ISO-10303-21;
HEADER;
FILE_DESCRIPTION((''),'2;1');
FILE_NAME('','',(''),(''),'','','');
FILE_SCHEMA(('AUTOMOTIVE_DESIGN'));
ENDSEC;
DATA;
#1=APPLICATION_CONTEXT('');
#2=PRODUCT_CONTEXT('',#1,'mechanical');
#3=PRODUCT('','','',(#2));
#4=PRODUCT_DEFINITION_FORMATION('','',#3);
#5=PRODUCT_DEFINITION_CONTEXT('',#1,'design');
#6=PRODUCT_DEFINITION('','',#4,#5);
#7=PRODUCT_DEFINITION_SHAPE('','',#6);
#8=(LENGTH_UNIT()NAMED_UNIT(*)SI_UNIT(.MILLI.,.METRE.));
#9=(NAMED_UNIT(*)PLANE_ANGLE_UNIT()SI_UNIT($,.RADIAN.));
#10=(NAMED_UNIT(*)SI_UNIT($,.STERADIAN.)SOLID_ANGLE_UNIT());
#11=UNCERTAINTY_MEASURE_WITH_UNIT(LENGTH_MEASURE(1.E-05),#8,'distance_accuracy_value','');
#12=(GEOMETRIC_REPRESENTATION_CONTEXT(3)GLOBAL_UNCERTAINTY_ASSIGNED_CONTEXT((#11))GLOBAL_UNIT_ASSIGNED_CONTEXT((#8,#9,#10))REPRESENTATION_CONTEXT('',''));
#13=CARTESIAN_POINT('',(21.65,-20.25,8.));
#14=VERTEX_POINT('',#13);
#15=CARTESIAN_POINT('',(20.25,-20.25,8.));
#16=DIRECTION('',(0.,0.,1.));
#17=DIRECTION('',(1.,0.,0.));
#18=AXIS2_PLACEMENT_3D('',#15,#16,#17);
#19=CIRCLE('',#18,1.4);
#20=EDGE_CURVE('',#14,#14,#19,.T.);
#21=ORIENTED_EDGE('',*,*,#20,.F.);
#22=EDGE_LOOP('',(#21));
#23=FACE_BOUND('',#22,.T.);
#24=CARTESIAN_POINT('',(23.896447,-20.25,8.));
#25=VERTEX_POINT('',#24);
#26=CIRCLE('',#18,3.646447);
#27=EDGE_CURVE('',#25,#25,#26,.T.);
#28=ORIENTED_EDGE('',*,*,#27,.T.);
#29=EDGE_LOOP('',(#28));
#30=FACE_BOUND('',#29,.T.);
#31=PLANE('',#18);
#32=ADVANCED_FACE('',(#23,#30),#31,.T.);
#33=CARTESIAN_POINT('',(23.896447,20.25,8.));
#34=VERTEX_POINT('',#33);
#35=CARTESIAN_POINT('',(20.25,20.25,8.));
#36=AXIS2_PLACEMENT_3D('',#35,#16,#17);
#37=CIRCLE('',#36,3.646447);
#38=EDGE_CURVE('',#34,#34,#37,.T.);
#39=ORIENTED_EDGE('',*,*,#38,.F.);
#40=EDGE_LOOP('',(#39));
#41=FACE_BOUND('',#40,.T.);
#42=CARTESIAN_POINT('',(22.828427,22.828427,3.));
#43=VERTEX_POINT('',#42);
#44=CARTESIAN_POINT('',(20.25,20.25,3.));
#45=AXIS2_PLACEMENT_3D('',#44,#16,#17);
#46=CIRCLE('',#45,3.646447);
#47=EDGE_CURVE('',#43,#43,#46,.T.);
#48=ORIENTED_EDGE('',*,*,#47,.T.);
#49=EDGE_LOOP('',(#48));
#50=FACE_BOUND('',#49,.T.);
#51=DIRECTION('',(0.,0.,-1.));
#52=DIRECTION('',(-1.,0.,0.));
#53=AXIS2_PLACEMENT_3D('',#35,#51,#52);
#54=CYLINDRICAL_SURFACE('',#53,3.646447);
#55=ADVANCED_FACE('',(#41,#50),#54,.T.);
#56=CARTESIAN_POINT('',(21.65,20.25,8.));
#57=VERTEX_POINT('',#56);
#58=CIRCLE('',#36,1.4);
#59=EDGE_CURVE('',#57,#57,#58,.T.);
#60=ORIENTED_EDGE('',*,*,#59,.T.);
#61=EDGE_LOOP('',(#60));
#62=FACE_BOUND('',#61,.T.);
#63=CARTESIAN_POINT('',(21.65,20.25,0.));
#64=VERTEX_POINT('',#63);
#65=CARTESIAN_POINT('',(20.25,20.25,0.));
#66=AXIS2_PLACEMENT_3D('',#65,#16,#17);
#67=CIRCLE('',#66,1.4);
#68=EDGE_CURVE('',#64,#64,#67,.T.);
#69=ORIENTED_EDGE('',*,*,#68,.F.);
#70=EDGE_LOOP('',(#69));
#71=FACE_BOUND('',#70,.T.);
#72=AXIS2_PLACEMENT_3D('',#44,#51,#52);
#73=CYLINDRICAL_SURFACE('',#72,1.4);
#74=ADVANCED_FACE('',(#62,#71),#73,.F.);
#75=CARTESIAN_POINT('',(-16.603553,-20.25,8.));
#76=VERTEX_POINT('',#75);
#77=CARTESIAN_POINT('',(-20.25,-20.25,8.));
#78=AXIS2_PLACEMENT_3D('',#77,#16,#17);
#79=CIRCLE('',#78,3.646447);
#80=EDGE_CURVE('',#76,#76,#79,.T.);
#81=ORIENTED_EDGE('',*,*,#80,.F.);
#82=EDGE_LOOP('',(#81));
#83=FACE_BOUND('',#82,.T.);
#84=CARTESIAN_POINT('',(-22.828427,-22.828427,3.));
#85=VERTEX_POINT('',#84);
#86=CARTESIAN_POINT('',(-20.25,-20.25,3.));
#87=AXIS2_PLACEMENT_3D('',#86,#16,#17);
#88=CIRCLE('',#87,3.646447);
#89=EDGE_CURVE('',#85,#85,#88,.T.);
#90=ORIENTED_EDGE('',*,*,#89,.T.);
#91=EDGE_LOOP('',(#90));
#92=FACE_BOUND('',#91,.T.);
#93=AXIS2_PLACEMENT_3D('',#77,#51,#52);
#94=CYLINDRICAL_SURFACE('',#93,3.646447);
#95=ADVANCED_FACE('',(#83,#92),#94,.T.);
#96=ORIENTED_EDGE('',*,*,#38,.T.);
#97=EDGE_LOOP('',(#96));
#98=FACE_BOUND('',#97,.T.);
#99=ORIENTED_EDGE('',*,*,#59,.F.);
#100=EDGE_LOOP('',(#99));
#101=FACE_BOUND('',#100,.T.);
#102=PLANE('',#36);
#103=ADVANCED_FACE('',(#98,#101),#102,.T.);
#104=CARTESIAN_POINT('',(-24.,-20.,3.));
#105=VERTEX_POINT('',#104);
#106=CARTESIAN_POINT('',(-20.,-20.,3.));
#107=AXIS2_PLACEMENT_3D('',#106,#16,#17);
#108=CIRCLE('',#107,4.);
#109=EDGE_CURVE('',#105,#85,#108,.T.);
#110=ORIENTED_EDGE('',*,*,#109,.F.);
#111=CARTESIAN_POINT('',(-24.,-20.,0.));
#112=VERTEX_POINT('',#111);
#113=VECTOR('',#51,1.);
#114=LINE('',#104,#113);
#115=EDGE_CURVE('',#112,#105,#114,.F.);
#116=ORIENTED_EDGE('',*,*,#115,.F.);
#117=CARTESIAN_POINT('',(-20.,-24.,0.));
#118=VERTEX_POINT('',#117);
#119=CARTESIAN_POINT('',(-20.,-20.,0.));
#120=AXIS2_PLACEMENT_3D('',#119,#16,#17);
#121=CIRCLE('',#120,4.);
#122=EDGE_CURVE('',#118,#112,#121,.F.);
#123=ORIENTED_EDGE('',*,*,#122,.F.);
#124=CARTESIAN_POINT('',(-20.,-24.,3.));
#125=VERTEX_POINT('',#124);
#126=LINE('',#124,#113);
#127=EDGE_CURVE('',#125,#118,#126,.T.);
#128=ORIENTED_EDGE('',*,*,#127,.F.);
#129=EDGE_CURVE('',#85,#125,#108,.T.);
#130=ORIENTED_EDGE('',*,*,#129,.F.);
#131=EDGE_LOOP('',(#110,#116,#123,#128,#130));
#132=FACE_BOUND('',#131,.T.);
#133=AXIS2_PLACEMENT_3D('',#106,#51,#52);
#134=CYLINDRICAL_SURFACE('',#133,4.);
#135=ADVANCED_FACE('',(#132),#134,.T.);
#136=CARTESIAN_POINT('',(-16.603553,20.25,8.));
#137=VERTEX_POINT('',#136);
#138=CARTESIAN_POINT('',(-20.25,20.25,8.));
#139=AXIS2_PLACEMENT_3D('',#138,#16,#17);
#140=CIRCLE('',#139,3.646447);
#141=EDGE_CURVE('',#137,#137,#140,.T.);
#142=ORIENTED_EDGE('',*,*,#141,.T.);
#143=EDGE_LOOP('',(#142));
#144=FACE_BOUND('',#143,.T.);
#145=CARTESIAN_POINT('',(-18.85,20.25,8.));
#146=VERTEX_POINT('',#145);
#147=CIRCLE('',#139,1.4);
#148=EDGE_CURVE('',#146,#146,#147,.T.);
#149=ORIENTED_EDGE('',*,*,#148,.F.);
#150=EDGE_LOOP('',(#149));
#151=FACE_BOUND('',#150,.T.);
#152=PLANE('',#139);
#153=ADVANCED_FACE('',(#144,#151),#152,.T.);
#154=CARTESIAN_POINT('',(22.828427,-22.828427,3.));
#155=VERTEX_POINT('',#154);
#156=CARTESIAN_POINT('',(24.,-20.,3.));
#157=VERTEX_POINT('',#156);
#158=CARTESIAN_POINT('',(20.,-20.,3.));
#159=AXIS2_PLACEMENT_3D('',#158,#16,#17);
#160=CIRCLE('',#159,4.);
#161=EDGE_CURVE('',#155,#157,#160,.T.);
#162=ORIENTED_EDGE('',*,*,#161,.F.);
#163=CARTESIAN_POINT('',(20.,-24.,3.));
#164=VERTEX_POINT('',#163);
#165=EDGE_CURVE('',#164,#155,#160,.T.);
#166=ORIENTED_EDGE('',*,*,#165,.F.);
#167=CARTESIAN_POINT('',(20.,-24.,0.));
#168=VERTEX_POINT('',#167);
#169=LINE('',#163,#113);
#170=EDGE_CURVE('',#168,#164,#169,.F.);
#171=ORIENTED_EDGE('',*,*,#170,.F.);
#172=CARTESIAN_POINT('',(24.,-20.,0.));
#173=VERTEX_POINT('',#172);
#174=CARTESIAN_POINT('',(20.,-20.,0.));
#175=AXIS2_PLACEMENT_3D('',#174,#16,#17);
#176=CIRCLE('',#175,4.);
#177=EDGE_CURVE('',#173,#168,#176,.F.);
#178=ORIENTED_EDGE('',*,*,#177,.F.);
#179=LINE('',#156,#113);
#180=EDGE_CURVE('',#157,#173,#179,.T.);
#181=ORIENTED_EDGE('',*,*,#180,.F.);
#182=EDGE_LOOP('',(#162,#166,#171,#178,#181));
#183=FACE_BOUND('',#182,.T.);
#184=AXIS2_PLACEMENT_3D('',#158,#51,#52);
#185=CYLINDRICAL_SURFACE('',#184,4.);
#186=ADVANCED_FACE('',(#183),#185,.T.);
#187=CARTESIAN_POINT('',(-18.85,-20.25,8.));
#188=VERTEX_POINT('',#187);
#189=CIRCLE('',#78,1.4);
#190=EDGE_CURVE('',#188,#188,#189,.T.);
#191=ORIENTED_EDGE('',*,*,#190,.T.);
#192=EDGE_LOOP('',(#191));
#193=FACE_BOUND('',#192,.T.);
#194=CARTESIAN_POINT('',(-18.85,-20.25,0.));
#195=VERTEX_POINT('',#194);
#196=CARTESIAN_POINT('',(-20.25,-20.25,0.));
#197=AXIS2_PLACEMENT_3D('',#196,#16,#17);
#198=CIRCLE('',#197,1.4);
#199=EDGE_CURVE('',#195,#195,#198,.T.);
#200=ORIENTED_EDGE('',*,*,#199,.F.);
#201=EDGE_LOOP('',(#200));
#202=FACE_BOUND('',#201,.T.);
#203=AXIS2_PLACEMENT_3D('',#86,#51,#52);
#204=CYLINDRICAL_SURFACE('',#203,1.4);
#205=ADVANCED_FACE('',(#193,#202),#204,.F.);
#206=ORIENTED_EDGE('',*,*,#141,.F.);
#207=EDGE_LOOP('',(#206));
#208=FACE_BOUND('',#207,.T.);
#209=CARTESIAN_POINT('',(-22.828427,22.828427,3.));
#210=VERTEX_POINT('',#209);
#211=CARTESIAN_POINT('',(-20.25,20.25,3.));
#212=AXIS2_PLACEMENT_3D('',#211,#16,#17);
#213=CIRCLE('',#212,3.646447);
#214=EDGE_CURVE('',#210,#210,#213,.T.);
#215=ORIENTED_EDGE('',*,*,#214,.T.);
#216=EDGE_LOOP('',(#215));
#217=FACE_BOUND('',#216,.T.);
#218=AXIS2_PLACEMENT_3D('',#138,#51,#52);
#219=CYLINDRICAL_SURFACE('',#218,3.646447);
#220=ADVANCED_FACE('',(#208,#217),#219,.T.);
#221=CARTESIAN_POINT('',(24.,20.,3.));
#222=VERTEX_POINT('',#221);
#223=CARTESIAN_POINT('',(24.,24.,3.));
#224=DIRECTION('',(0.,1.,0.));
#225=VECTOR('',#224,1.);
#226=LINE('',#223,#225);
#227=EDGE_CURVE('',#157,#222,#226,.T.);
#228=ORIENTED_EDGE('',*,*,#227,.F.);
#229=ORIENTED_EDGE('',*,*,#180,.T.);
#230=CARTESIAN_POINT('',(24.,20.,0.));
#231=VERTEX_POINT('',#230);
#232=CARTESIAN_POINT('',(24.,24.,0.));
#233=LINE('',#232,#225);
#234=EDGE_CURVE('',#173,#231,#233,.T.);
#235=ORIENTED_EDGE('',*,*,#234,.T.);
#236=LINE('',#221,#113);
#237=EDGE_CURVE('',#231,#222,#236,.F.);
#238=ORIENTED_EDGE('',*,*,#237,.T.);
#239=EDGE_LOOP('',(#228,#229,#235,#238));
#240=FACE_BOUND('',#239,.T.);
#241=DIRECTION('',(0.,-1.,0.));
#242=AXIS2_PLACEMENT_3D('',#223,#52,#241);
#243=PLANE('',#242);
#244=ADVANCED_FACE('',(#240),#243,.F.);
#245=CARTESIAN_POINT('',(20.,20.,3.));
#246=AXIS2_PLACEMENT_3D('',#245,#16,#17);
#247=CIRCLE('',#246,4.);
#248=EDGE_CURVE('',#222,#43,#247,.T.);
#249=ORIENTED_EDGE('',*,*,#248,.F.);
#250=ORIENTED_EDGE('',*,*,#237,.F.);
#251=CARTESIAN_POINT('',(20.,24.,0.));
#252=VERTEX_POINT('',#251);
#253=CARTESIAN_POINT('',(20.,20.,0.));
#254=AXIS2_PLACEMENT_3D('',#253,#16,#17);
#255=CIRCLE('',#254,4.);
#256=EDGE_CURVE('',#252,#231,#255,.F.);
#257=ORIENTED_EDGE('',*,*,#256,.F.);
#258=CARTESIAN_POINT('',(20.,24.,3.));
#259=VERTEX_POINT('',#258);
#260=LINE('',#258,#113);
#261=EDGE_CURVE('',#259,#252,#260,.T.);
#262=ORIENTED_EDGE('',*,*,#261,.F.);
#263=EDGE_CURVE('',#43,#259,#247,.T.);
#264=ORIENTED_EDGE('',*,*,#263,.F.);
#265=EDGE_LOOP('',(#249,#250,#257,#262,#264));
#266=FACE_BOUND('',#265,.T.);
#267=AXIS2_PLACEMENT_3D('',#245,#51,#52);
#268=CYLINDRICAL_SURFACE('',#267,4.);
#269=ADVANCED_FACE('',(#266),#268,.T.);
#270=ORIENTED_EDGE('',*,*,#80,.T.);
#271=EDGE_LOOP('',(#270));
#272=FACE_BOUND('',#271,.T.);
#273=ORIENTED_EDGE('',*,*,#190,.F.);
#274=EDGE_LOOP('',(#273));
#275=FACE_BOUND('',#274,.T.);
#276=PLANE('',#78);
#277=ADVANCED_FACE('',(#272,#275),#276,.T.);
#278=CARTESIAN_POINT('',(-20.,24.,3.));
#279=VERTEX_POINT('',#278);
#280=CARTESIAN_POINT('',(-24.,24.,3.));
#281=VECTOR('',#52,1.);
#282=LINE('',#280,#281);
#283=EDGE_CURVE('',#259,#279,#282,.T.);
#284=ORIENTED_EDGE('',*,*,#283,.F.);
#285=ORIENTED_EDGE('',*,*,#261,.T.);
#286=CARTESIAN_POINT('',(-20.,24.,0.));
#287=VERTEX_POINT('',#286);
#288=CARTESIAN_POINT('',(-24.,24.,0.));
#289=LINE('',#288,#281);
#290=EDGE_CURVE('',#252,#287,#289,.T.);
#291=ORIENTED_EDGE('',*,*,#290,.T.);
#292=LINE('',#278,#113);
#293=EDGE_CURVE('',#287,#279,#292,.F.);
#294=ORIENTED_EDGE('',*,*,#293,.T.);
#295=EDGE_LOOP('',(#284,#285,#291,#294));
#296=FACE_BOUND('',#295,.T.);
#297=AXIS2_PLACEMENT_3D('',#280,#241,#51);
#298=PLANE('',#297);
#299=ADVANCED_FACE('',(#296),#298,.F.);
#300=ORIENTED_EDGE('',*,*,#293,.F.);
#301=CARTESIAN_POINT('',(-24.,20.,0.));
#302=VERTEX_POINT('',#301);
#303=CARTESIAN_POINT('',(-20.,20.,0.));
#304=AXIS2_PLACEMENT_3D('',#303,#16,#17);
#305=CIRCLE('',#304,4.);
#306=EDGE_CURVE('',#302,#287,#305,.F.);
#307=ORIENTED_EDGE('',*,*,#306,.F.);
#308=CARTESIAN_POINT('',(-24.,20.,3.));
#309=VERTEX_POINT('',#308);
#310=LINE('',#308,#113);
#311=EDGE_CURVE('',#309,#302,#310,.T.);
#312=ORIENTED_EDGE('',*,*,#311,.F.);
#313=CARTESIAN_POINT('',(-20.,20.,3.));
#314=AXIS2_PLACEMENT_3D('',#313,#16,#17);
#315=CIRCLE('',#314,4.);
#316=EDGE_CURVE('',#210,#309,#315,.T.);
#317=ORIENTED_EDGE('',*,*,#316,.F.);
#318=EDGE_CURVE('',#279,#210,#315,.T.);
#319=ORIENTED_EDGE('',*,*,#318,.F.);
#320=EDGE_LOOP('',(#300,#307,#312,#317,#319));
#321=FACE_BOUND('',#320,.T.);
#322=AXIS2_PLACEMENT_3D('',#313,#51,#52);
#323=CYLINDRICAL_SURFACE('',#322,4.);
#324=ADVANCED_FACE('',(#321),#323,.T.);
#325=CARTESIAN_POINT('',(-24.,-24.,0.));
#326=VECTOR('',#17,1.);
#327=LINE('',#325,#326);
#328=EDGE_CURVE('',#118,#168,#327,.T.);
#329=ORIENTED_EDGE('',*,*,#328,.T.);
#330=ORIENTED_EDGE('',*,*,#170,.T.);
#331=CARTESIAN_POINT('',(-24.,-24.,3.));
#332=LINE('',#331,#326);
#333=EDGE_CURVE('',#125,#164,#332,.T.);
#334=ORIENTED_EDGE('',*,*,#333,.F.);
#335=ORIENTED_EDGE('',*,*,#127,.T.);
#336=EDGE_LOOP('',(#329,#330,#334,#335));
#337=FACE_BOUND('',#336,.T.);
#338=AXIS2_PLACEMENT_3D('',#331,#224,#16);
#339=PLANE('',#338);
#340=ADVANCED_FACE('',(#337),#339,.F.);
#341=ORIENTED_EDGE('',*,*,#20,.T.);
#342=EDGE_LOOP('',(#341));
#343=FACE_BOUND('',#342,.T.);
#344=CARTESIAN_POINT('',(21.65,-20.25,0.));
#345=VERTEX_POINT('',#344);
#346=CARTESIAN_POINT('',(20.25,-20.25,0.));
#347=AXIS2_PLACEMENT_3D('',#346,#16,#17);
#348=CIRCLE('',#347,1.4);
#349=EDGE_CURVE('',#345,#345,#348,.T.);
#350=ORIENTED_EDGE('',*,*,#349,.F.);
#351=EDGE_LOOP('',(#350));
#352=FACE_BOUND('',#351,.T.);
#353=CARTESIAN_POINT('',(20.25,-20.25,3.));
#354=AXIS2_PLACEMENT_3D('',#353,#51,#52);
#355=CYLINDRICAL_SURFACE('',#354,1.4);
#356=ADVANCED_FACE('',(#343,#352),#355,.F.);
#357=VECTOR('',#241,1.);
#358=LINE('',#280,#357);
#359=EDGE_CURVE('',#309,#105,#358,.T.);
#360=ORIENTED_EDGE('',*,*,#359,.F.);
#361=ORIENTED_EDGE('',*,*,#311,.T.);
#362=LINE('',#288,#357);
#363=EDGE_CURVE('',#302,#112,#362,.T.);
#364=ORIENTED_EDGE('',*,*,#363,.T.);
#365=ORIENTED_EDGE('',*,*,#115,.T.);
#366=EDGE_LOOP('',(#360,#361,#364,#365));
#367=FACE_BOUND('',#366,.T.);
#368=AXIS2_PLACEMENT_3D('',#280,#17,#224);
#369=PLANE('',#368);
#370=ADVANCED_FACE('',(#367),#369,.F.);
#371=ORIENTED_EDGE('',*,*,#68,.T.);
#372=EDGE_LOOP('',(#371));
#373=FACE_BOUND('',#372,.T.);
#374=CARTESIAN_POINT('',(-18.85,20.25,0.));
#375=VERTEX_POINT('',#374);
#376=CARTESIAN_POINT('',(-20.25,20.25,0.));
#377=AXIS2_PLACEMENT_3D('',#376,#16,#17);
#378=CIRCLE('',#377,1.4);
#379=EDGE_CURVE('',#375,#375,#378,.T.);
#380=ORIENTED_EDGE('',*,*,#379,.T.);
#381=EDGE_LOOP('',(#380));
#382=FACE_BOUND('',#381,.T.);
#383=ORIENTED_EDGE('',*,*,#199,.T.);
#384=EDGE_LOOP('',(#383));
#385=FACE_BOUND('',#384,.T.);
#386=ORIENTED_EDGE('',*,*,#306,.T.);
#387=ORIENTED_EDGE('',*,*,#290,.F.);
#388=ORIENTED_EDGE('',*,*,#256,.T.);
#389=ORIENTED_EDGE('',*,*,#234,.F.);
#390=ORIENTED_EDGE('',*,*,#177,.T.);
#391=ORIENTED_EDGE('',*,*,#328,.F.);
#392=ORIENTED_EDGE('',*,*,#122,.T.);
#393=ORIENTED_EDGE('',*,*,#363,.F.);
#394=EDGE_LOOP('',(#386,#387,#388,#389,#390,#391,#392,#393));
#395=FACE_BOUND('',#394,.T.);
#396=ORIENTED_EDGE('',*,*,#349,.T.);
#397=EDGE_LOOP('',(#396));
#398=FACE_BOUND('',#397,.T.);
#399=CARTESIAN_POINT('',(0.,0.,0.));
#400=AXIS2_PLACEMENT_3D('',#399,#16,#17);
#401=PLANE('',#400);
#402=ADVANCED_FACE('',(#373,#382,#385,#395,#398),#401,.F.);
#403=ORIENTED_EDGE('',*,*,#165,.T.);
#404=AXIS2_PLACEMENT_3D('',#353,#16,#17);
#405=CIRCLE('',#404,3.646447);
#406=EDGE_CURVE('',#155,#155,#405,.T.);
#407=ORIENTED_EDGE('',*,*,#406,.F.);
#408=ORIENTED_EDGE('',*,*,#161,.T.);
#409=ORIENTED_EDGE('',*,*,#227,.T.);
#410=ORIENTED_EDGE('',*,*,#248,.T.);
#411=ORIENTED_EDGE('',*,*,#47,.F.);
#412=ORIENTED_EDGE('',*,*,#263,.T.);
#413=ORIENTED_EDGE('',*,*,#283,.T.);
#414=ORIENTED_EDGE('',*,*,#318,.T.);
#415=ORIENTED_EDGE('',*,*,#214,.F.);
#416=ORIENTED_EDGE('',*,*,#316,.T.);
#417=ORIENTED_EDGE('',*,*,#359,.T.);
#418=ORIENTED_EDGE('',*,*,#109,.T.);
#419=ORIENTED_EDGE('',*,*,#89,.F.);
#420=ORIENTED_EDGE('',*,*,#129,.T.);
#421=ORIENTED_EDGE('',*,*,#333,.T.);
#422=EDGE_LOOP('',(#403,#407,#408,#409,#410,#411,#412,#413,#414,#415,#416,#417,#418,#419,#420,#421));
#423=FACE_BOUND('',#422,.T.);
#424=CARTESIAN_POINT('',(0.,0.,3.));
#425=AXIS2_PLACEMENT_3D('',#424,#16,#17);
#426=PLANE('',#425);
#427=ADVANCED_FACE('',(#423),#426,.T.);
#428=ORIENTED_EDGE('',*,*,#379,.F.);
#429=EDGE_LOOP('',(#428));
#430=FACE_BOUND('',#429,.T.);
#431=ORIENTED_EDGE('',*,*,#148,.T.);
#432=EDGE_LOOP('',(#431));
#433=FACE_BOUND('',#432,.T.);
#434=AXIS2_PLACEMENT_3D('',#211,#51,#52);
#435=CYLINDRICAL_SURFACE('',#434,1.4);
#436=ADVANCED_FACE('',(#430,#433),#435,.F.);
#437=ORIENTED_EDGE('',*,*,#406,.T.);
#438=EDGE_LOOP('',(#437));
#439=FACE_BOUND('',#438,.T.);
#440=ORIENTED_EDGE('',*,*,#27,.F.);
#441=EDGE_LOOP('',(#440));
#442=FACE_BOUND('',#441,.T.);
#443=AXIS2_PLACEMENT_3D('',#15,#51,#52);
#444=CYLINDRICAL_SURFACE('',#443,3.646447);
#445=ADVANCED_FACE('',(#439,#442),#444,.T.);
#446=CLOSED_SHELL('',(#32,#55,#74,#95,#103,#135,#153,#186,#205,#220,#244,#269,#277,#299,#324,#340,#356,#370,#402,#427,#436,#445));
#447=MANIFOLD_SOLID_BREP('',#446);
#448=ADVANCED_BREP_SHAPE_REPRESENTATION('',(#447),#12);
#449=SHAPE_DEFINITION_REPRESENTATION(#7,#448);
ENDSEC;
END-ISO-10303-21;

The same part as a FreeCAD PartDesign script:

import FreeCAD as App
import Part
import Sketcher

V = App.Vector


def edges_at(feature, points):
    """Names of the edges that pass closest to the given points."""
    edges = feature.Shape.Edges
    near = lambda p: min(range(len(edges)), key=lambda i: edges[i].distToShape(Part.Vertex(*p))[0])
    return sorted({f"Edge{near(p) + 1}" for p in points})


def add_polygon(sketch, points):
    """Adds a closed chain of lines whose ends are joined by coincident constraints."""
    first, n = sketch.GeometryCount, len(points)
    for a, b in zip(points, points[1:] + points[:1]):
        sketch.addGeometry(Part.LineSegment(App.Vector(*a, 0), App.Vector(*b, 0)), False)
    for i in range(n):
        sketch.addConstraint(Sketcher.Constraint("Coincident", first + i, 2, first + (i + 1) % n, 1))

doc = App.newDocument("Part")
body = doc.addObject("PartDesign::Body", "Body")

# Sketch on XY plane
sketch1 = body.newObject("Sketcher::SketchObject", "Sketch")
sketch1.AttachmentSupport = (doc.getObject("XY_Plane"), [""])
sketch1.MapMode = "FlatFace"
add_polygon(sketch1, [(-24, 24), (-24, -24), (24, -24), (24, 24)])  # lines 0-3
sketch1.addGeometry(Part.Circle(V(-20.2, -20.2, 0), V(0, 0, 1), 1.4), False)  # 4
sketch1.addGeometry(Part.Circle(V(20.2, -20.2, 0), V(0, 0, 1), 1.4), False)  # 5
sketch1.addGeometry(Part.Circle(V(-20.2, 20.2, 0), V(0, 0, 1), 1.4), False)  # 6
sketch1.addGeometry(Part.Circle(V(20.2, 20.2, 0), V(0, 0, 1), 1.4), False)  # 7
sketch1.addConstraint([
    Sketcher.Constraint("Vertical", 0),
    Sketcher.Constraint("Horizontal", 1),
    Sketcher.Constraint("Vertical", 2),
    Sketcher.Constraint("Horizontal", 3),
    Sketcher.Constraint("Equal", 4, 5),
    Sketcher.Constraint("Equal", 5, 6),
    Sketcher.Constraint("Equal", 6, 7),
    Sketcher.Constraint("Symmetric", 5, 3, 6, 3, -1, 1),
    Sketcher.Constraint("Symmetric", 4, 3, 7, 3, -1, 1),
    Sketcher.Constraint("Symmetric", 0, 2, 2, 2, -1, 1),
    Sketcher.Constraint("Symmetric", 4, 3, 5, 3, -2),
    Sketcher.Constraint("Equal", 3, 0),
    Sketcher.Constraint("Diameter", 4, 2.8),
    Sketcher.Constraint("DistanceX", 1, 1, 1, 2, 48.0),
    Sketcher.Constraint("DistanceX", 4, 3, 5, 3, 40.5),
    Sketcher.Constraint("DistanceY", 4, 3, 6, 3, 40.5),
])
pad1 = body.newObject("PartDesign::Pad", "Pad")
pad1.Profile = sketch1
pad1.Length = 3
doc.recompute()

fillet = body.newObject("PartDesign::Fillet", "Fillet")
fillet.Base = (pad1, edges_at(pad1, [
    (24, -24, 1.5),
    (-24, -24, 1.5),
    (-24, 24, 1.5),
    (24, 24, 1.5),
]))
fillet.Radius = 4

# Sketch on XY plane
sketch2 = body.newObject("Sketcher::SketchObject", "Sketch001")
sketch2.AttachmentSupport = (doc.getObject("XY_Plane"), [""])
sketch2.MapMode = "FlatFace"
sketch2.AttachmentOffset = App.Placement(V(0, 0, 3), App.Rotation())
sketch2.addGeometry([
    Part.Circle(V(-20.2, 20.2, 0), V(0, 0, 1), 3.6),
    Part.Circle(V(20.2, 20.2, 0), V(0, 0, 1), 3.6),
    Part.Circle(V(20.2, -20.2, 0), V(0, 0, 1), 3.6),
    Part.Circle(V(-20.2, -20.2, 0), V(0, 0, 1), 3.6),
], False)
sketch2.addConstraint([
    Sketcher.Constraint("Equal", 0, 1),
    Sketcher.Constraint("Equal", 1, 2),
    Sketcher.Constraint("Equal", 2, 3),
    Sketcher.Constraint("Symmetric", 0, 3, 2, 3, -1, 1),
    Sketcher.Constraint("Symmetric", 1, 3, 3, 3, -1, 1),
    Sketcher.Constraint("Symmetric", 0, 3, 1, 3, -2),
    Sketcher.Constraint("DistanceX", 0, 3, 1, 3, 40.5),
    Sketcher.Constraint("DistanceY", 2, 3, 1, 3, 40.5),
    Sketcher.Constraint("Diameter", 0, 7.292893),
])
pad2 = body.newObject("PartDesign::Pad", "Pad001")
pad2.Profile = sketch2
pad2.Length = 5

# Sketch on XY plane
sketch3 = body.newObject("Sketcher::SketchObject", "Sketch002")
sketch3.AttachmentSupport = (doc.getObject("XY_Plane"), [""])
sketch3.MapMode = "FlatFace"
sketch3.addGeometry([
    Part.Circle(V(20.2, 20.2, 0), V(0, 0, 1), 1.4),
    Part.Circle(V(-20.2, 20.2, 0), V(0, 0, 1), 1.4),
    Part.Circle(V(-20.2, -20.2, 0), V(0, 0, 1), 1.4),
    Part.Circle(V(20.2, -20.2, 0), V(0, 0, 1), 1.4),
], False)
sketch3.addConstraint([
    Sketcher.Constraint("Equal", 0, 1),
    Sketcher.Constraint("Equal", 1, 2),
    Sketcher.Constraint("Equal", 2, 3),
    Sketcher.Constraint("Symmetric", 0, 3, 2, 3, -1, 1),
    Sketcher.Constraint("Symmetric", 1, 3, 3, 3, -1, 1),
    Sketcher.Constraint("Symmetric", 0, 3, 1, 3, -2),
    Sketcher.Constraint("Diameter", 0, 2.8),
    Sketcher.Constraint("DistanceX", 1, 3, 0, 3, 40.5),
    Sketcher.Constraint("DistanceY", 2, 3, 1, 3, 40.5),
])
pocket1 = body.newObject("PartDesign::Pocket", "Pocket")
pocket1.Profile = sketch3
pocket1.Length = 99
pocket1.Reversed = True

doc.recompute()
